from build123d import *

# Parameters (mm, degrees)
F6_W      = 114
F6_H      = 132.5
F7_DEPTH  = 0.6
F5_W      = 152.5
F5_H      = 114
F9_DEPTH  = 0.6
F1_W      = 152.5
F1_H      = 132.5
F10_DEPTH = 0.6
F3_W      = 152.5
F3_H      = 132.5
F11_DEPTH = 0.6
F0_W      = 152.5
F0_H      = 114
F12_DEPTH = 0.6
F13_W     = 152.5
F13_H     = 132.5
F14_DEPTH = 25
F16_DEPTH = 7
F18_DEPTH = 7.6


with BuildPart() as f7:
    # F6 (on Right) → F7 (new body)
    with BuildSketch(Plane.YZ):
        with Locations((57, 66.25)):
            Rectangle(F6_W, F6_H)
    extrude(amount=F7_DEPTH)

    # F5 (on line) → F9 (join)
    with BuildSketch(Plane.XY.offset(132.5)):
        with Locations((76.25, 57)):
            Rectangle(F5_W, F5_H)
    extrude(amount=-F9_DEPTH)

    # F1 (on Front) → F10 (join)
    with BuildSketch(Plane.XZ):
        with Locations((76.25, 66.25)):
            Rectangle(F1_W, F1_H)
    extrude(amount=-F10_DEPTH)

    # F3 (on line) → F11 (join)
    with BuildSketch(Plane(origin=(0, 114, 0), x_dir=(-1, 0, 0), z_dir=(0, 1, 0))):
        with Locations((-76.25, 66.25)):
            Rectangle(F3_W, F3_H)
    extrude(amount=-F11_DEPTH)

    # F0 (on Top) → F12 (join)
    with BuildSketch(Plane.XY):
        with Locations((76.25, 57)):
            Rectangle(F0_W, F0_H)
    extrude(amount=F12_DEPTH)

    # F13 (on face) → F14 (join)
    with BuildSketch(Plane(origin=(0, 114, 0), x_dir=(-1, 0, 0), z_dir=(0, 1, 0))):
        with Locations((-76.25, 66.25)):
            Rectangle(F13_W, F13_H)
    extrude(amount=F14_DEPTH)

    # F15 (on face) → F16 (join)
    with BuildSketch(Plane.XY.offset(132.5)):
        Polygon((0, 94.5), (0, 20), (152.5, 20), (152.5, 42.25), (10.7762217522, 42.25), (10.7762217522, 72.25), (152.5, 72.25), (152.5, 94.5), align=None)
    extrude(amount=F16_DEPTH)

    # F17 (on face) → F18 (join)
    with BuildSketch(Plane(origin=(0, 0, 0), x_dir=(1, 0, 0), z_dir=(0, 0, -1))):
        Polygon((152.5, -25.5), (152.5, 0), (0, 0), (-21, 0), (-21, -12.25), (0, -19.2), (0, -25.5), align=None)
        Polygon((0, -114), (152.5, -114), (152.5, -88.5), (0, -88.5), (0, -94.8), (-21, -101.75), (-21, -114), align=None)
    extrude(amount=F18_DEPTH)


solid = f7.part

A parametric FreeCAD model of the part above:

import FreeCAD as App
import Part
import Sketcher

V = App.Vector
Q = App.Units.Quantity


def add_polygon(sketch, points):
    """Adds a closed chain of lines whose ends are joined by coincident constraints."""
    first, n = sketch.GeometryCount, len(points)
    for a, b in zip(points, points[1:] + points[:1]):
        sketch.addGeometry(Part.LineSegment(App.Vector(*a, 0), App.Vector(*b, 0)), False)
    for i in range(n):
        sketch.addConstraint(Sketcher.Constraint("Coincident", first + i, 2, first + (i + 1) % n, 1))

doc = App.newDocument("Part")
body = doc.addObject("PartDesign::Body", "Body")

# Sketch on YZ plane
sketch1 = doc.addObject("Sketcher::SketchObject", "Sketch")
body.addObject(sketch1)
sketch1.AttachmentSupport = (doc.YZ_Plane, [""])
sketch1.MapMode = "FlatFace"
add_polygon(sketch1, [(0, 132), (0, 0), (114, 0), (114, 132)])  # lines 0-3
sketch1.addConstraint(Sketcher.Constraint("Vertical", 0))
sketch1.addConstraint(Sketcher.Constraint("Horizontal", 1))
sketch1.addConstraint(Sketcher.Constraint("Vertical", 2))
sketch1.addConstraint(Sketcher.Constraint("Horizontal", 3))
sketch1.addConstraint(Sketcher.Constraint("Coincident", 0, 2, -1, 1))
sketch1.addConstraint(Sketcher.Constraint("DistanceX", 1, 1, 1, 2, Q("114 mm")))
sketch1.addConstraint(Sketcher.Constraint("DistanceY", 0, 2, 0, 1, Q("132.5 mm")))
pad1 = doc.addObject("PartDesign::Pad", "Pad")
body.addObject(pad1)
pad1.Profile = sketch1
pad1.Length = 0.6

# Sketch on XY plane
sketch2 = doc.addObject("Sketcher::SketchObject", "Sketch001")
body.addObject(sketch2)
sketch2.AttachmentSupport = (doc.XY_Plane, [""])
sketch2.MapMode = "FlatFace"
sketch2.AttachmentOffset = App.Placement(V(0, 0, 132.5), App.Rotation())
add_polygon(sketch2, [(0, 114), (0, 0), (152, 0), (152, 114)])  # lines 0-3
sketch2.addConstraint(Sketcher.Constraint("Vertical", 0))
sketch2.addConstraint(Sketcher.Constraint("Horizontal", 1))
sketch2.addConstraint(Sketcher.Constraint("Vertical", 2))
sketch2.addConstraint(Sketcher.Constraint("Horizontal", 3))
sketch2.addConstraint(Sketcher.Constraint("Coincident", 0, 2, -1, 1))
sketch2.addConstraint(Sketcher.Constraint("DistanceY", 0, 2, 0, 1, Q("114 mm")))
sketch2.addConstraint(Sketcher.Constraint("DistanceX", 1, 1, 1, 2, Q("152.5 mm")))
pad2 = doc.addObject("PartDesign::Pad", "Pad001")
body.addObject(pad2)
pad2.Profile = sketch2
pad2.Length = 0.6
pad2.Reversed = True

# Sketch on XZ plane
sketch3 = doc.addObject("Sketcher::SketchObject", "Sketch002")
body.addObject(sketch3)
sketch3.AttachmentSupport = (doc.XZ_Plane, [""])
sketch3.MapMode = "FlatFace"
add_polygon(sketch3, [(0, 132), (0, 0), (152, 0), (152, 132)])  # lines 0-3
sketch3.addConstraint(Sketcher.Constraint("Vertical", 0))
sketch3.addConstraint(Sketcher.Constraint("Horizontal", 1))
sketch3.addConstraint(Sketcher.Constraint("Vertical", 2))
sketch3.addConstraint(Sketcher.Constraint("Horizontal", 3))
sketch3.addConstraint(Sketcher.Constraint("Coincident", 0, 2, -1, 1))
sketch3.addConstraint(Sketcher.Constraint("DistanceX", 1, 1, 1, 2, Q("152.5 mm")))
sketch3.addConstraint(Sketcher.Constraint("DistanceY", 0, 2, 0, 1, Q("132.5 mm")))
pad3 = doc.addObject("PartDesign::Pad", "Pad002")
body.addObject(pad3)
pad3.Profile = sketch3
pad3.Length = 0.6
pad3.Reversed = True

# Sketch on XZ plane
sketch4 = doc.addObject("Sketcher::SketchObject", "Sketch003")
body.addObject(sketch4)
sketch4.AttachmentSupport = (doc.XZ_Plane, [""])
sketch4.MapMode = "FlatFace"
sketch4.AttachmentOffset = App.Placement(V(0, 0, -114), App.Rotation())
add_polygon(sketch4, [(152, 132), (152, 0), (0, 0), (0, 132)])  # lines 0-3
sketch4.addConstraint(Sketcher.Constraint("Vertical", 0))
sketch4.addConstraint(Sketcher.Constraint("Horizontal", 1))
sketch4.addConstraint(Sketcher.Constraint("Vertical", 2))
sketch4.addConstraint(Sketcher.Constraint("Horizontal", 3))
sketch4.addConstraint(Sketcher.Constraint("Coincident", 1, 2, -1, 1))
sketch4.addConstraint(Sketcher.Constraint("DistanceX", 1, 2, 1, 1, Q("152.5 mm")))
sketch4.addConstraint(Sketcher.Constraint("DistanceY", 0, 2, 0, 1, Q("132.5 mm")))
pad4 = doc.addObject("PartDesign::Pad", "Pad003")
body.addObject(pad4)
pad4.Profile = sketch4
pad4.Length = 0.6

# Sketch on XY plane
sketch5 = doc.addObject("Sketcher::SketchObject", "Sketch004")
body.addObject(sketch5)
sketch5.AttachmentSupport = (doc.XY_Plane, [""])
sketch5.MapMode = "FlatFace"
add_polygon(sketch5, [(0, 114), (0, 0), (152, 0), (152, 114)])  # lines 0-3
sketch5.addConstraint(Sketcher.Constraint("Vertical", 0))
sketch5.addConstraint(Sketcher.Constraint("Horizontal", 1))
sketch5.addConstraint(Sketcher.Constraint("Vertical", 2))
sketch5.addConstraint(Sketcher.Constraint("Horizontal", 3))
sketch5.addConstraint(Sketcher.Constraint("Coincident", 0, 2, -1, 1))
sketch5.addConstraint(Sketcher.Constraint("DistanceY", 0, 2, 0, 1, Q("114 mm")))
sketch5.addConstraint(Sketcher.Constraint("DistanceX", 1, 1, 1, 2, Q("152.5 mm")))
pad5 = doc.addObject("PartDesign::Pad", "Pad004")
body.addObject(pad5)
pad5.Profile = sketch5
pad5.Length = 0.6

# Sketch on XZ plane
sketch6 = doc.addObject("Sketcher::SketchObject", "Sketch005")
body.addObject(sketch6)
sketch6.AttachmentSupport = (doc.XZ_Plane, [""])
sketch6.MapMode = "FlatFace"
sketch6.AttachmentOffset = App.Placement(V(0, 0, -114), App.Rotation())
add_polygon(sketch6, [(152, 132), (152, 0), (0, 0), (0, 132)])  # lines 0-3
sketch6.addConstraint(Sketcher.Constraint("Vertical", 0))
sketch6.addConstraint(Sketcher.Constraint("Horizontal", 1))
sketch6.addConstraint(Sketcher.Constraint("Vertical", 2))
sketch6.addConstraint(Sketcher.Constraint("Horizontal", 3))
sketch6.addConstraint(Sketcher.Constraint("Coincident", 1, 2, -1, 1))
sketch6.addConstraint(Sketcher.Constraint("DistanceX", 1, 2, 1, 1, Q("152.5 mm")))
sketch6.addConstraint(Sketcher.Constraint("DistanceY", 0, 2, 0, 1, Q("132.5 mm")))
pad6 = doc.addObject("PartDesign::Pad", "Pad005")
body.addObject(pad6)
pad6.Profile = sketch6
pad6.Length = 25
pad6.Reversed = True

# Sketch on XY plane
sketch7 = doc.addObject("Sketcher::SketchObject", "Sketch006")
body.addObject(sketch7)
sketch7.AttachmentSupport = (doc.XY_Plane, [""])
sketch7.MapMode = "FlatFace"
sketch7.AttachmentOffset = App.Placement(V(0, 0, 132.5), App.Rotation())
add_polygon(sketch7, [(0, 94), (0, 20), (152, 20), (152, 42), (11, 42), (11, 72), (152, 72), (152, 94)])  # lines 0-7
sketch7.addConstraint(Sketcher.Constraint("Vertical", 0))
sketch7.addConstraint(Sketcher.Constraint("Horizontal", 1))
sketch7.addConstraint(Sketcher.Constraint("Vertical", 2))
sketch7.addConstraint(Sketcher.Constraint("Horizontal", 3))
sketch7.addConstraint(Sketcher.Constraint("Vertical", 4))
sketch7.addConstraint(Sketcher.Constraint("Horizontal", 5))
sketch7.addConstraint(Sketcher.Constraint("Vertical", 6))
sketch7.addConstraint(Sketcher.Constraint("Horizontal", 7))
sketch7.addConstraint(Sketcher.Constraint("PointOnObject", 0, 2, -2))
sketch7.addConstraint(Sketcher.Constraint("Vertical", 2, 2, 5, 2))
sketch7.addConstraint(Sketcher.Constraint("Equal", 2, 6))
sketch7.addConstraint(Sketcher.Constraint("DistanceY", 4, 1, 4, 2, Q("30 mm")))
sketch7.addConstraint(Sketcher.Constraint("DistanceX", 1, 1, 1, 2, Q("152.5 mm")))
sketch7.addConstraint(Sketcher.Constraint("DistanceY", 0, 2, 0, 1, Q("74.5 mm")))
sketch7.addConstraint(Sketcher.Constraint("DistanceY", -1, 1, 0, 2, Q("20 mm")))
sketch7.addConstraint(Sketcher.Constraint("DistanceX", 3, 2, 3, 1, Q("141.723778 mm")))
pad7 = doc.addObject("PartDesign::Pad", "Pad006")
body.addObject(pad7)
pad7.Profile = sketch7
pad7.Length = 7

# Sketch on XY plane
sketch8 = doc.addObject("Sketcher::SketchObject", "Sketch007")
body.addObject(sketch8)
sketch8.AttachmentSupport = (doc.XY_Plane, [""])
sketch8.MapMode = "FlatFace"
add_polygon(sketch8, [(152, 26), (152, 0), (-21, 0), (-21, 12), (0, 19), (0, 26)])  # lines 0-5
add_polygon(sketch8, [(152, 114), (152, 88), (0, 88), (0, 95), (-21, 102), (-21, 114)])  # lines 6-11
sketch8.addConstraint(Sketcher.Constraint("Vertical", 0))
sketch8.addConstraint(Sketcher.Constraint("Horizontal", 1))
sketch8.addConstraint(Sketcher.Constraint("Vertical", 2))
sketch8.addConstraint(Sketcher.Constraint("Vertical", 4))
sketch8.addConstraint(Sketcher.Constraint("Horizontal", 5))
sketch8.addConstraint(Sketcher.Constraint("Vertical", 6))
sketch8.addConstraint(Sketcher.Constraint("Horizontal", 7))
sketch8.addConstraint(Sketcher.Constraint("Vertical", 8))
sketch8.addConstraint(Sketcher.Constraint("Vertical", 10))
sketch8.addConstraint(Sketcher.Constraint("Horizontal", 11))
sketch8.addConstraint(Sketcher.Constraint("PointOnObject", 0, 2, -1))
sketch8.addConstraint(Sketcher.Constraint("PointOnObject", 3, 2, -2))
sketch8.addConstraint(Sketcher.Constraint("PointOnObject", 7, 2, -2))
sketch8.addConstraint(Sketcher.Constraint("Vertical", 5, 2, 6, 2))
sketch8.addConstraint(Sketcher.Constraint("Vertical", 2, 2, 9, 2))
sketch8.addConstraint(Sketcher.Constraint("Equal", 0, 6))
sketch8.addConstraint(Sketcher.Constraint("Equal", 4, 8))
sketch8.addConstraint(Sketcher.Constraint("Equal", 2, 10))
sketch8.addConstraint(Sketcher.Constraint("DistanceX", 1, 2, 1, 1, Q("173.5 mm")))
sketch8.addConstraint(Sketcher.Constraint("DistanceX", 5, 1, 5, 2, Q("152.5 mm")))
sketch8.addConstraint(Sketcher.Constraint("DistanceY", 0, 2, 0, 1, Q("25.5 mm")))
sketch8.addConstraint(Sketcher.Constraint("DistanceY", 4, 1, 4, 2, Q("6.3 mm")))
sketch8.addConstraint(Sketcher.Constraint("DistanceY", -1, 1, 10, 2, Q("114 mm")))
sketch8.addConstraint(Sketcher.Constraint("DistanceY", 2, 1, 2, 2, Q("12.25 mm")))
pad8 = doc.addObject("PartDesign::Pad", "Pad007")
body.addObject(pad8)
pad8.Profile = sketch8
pad8.Length = 7.6
pad8.Reversed = True

doc.recompute()
